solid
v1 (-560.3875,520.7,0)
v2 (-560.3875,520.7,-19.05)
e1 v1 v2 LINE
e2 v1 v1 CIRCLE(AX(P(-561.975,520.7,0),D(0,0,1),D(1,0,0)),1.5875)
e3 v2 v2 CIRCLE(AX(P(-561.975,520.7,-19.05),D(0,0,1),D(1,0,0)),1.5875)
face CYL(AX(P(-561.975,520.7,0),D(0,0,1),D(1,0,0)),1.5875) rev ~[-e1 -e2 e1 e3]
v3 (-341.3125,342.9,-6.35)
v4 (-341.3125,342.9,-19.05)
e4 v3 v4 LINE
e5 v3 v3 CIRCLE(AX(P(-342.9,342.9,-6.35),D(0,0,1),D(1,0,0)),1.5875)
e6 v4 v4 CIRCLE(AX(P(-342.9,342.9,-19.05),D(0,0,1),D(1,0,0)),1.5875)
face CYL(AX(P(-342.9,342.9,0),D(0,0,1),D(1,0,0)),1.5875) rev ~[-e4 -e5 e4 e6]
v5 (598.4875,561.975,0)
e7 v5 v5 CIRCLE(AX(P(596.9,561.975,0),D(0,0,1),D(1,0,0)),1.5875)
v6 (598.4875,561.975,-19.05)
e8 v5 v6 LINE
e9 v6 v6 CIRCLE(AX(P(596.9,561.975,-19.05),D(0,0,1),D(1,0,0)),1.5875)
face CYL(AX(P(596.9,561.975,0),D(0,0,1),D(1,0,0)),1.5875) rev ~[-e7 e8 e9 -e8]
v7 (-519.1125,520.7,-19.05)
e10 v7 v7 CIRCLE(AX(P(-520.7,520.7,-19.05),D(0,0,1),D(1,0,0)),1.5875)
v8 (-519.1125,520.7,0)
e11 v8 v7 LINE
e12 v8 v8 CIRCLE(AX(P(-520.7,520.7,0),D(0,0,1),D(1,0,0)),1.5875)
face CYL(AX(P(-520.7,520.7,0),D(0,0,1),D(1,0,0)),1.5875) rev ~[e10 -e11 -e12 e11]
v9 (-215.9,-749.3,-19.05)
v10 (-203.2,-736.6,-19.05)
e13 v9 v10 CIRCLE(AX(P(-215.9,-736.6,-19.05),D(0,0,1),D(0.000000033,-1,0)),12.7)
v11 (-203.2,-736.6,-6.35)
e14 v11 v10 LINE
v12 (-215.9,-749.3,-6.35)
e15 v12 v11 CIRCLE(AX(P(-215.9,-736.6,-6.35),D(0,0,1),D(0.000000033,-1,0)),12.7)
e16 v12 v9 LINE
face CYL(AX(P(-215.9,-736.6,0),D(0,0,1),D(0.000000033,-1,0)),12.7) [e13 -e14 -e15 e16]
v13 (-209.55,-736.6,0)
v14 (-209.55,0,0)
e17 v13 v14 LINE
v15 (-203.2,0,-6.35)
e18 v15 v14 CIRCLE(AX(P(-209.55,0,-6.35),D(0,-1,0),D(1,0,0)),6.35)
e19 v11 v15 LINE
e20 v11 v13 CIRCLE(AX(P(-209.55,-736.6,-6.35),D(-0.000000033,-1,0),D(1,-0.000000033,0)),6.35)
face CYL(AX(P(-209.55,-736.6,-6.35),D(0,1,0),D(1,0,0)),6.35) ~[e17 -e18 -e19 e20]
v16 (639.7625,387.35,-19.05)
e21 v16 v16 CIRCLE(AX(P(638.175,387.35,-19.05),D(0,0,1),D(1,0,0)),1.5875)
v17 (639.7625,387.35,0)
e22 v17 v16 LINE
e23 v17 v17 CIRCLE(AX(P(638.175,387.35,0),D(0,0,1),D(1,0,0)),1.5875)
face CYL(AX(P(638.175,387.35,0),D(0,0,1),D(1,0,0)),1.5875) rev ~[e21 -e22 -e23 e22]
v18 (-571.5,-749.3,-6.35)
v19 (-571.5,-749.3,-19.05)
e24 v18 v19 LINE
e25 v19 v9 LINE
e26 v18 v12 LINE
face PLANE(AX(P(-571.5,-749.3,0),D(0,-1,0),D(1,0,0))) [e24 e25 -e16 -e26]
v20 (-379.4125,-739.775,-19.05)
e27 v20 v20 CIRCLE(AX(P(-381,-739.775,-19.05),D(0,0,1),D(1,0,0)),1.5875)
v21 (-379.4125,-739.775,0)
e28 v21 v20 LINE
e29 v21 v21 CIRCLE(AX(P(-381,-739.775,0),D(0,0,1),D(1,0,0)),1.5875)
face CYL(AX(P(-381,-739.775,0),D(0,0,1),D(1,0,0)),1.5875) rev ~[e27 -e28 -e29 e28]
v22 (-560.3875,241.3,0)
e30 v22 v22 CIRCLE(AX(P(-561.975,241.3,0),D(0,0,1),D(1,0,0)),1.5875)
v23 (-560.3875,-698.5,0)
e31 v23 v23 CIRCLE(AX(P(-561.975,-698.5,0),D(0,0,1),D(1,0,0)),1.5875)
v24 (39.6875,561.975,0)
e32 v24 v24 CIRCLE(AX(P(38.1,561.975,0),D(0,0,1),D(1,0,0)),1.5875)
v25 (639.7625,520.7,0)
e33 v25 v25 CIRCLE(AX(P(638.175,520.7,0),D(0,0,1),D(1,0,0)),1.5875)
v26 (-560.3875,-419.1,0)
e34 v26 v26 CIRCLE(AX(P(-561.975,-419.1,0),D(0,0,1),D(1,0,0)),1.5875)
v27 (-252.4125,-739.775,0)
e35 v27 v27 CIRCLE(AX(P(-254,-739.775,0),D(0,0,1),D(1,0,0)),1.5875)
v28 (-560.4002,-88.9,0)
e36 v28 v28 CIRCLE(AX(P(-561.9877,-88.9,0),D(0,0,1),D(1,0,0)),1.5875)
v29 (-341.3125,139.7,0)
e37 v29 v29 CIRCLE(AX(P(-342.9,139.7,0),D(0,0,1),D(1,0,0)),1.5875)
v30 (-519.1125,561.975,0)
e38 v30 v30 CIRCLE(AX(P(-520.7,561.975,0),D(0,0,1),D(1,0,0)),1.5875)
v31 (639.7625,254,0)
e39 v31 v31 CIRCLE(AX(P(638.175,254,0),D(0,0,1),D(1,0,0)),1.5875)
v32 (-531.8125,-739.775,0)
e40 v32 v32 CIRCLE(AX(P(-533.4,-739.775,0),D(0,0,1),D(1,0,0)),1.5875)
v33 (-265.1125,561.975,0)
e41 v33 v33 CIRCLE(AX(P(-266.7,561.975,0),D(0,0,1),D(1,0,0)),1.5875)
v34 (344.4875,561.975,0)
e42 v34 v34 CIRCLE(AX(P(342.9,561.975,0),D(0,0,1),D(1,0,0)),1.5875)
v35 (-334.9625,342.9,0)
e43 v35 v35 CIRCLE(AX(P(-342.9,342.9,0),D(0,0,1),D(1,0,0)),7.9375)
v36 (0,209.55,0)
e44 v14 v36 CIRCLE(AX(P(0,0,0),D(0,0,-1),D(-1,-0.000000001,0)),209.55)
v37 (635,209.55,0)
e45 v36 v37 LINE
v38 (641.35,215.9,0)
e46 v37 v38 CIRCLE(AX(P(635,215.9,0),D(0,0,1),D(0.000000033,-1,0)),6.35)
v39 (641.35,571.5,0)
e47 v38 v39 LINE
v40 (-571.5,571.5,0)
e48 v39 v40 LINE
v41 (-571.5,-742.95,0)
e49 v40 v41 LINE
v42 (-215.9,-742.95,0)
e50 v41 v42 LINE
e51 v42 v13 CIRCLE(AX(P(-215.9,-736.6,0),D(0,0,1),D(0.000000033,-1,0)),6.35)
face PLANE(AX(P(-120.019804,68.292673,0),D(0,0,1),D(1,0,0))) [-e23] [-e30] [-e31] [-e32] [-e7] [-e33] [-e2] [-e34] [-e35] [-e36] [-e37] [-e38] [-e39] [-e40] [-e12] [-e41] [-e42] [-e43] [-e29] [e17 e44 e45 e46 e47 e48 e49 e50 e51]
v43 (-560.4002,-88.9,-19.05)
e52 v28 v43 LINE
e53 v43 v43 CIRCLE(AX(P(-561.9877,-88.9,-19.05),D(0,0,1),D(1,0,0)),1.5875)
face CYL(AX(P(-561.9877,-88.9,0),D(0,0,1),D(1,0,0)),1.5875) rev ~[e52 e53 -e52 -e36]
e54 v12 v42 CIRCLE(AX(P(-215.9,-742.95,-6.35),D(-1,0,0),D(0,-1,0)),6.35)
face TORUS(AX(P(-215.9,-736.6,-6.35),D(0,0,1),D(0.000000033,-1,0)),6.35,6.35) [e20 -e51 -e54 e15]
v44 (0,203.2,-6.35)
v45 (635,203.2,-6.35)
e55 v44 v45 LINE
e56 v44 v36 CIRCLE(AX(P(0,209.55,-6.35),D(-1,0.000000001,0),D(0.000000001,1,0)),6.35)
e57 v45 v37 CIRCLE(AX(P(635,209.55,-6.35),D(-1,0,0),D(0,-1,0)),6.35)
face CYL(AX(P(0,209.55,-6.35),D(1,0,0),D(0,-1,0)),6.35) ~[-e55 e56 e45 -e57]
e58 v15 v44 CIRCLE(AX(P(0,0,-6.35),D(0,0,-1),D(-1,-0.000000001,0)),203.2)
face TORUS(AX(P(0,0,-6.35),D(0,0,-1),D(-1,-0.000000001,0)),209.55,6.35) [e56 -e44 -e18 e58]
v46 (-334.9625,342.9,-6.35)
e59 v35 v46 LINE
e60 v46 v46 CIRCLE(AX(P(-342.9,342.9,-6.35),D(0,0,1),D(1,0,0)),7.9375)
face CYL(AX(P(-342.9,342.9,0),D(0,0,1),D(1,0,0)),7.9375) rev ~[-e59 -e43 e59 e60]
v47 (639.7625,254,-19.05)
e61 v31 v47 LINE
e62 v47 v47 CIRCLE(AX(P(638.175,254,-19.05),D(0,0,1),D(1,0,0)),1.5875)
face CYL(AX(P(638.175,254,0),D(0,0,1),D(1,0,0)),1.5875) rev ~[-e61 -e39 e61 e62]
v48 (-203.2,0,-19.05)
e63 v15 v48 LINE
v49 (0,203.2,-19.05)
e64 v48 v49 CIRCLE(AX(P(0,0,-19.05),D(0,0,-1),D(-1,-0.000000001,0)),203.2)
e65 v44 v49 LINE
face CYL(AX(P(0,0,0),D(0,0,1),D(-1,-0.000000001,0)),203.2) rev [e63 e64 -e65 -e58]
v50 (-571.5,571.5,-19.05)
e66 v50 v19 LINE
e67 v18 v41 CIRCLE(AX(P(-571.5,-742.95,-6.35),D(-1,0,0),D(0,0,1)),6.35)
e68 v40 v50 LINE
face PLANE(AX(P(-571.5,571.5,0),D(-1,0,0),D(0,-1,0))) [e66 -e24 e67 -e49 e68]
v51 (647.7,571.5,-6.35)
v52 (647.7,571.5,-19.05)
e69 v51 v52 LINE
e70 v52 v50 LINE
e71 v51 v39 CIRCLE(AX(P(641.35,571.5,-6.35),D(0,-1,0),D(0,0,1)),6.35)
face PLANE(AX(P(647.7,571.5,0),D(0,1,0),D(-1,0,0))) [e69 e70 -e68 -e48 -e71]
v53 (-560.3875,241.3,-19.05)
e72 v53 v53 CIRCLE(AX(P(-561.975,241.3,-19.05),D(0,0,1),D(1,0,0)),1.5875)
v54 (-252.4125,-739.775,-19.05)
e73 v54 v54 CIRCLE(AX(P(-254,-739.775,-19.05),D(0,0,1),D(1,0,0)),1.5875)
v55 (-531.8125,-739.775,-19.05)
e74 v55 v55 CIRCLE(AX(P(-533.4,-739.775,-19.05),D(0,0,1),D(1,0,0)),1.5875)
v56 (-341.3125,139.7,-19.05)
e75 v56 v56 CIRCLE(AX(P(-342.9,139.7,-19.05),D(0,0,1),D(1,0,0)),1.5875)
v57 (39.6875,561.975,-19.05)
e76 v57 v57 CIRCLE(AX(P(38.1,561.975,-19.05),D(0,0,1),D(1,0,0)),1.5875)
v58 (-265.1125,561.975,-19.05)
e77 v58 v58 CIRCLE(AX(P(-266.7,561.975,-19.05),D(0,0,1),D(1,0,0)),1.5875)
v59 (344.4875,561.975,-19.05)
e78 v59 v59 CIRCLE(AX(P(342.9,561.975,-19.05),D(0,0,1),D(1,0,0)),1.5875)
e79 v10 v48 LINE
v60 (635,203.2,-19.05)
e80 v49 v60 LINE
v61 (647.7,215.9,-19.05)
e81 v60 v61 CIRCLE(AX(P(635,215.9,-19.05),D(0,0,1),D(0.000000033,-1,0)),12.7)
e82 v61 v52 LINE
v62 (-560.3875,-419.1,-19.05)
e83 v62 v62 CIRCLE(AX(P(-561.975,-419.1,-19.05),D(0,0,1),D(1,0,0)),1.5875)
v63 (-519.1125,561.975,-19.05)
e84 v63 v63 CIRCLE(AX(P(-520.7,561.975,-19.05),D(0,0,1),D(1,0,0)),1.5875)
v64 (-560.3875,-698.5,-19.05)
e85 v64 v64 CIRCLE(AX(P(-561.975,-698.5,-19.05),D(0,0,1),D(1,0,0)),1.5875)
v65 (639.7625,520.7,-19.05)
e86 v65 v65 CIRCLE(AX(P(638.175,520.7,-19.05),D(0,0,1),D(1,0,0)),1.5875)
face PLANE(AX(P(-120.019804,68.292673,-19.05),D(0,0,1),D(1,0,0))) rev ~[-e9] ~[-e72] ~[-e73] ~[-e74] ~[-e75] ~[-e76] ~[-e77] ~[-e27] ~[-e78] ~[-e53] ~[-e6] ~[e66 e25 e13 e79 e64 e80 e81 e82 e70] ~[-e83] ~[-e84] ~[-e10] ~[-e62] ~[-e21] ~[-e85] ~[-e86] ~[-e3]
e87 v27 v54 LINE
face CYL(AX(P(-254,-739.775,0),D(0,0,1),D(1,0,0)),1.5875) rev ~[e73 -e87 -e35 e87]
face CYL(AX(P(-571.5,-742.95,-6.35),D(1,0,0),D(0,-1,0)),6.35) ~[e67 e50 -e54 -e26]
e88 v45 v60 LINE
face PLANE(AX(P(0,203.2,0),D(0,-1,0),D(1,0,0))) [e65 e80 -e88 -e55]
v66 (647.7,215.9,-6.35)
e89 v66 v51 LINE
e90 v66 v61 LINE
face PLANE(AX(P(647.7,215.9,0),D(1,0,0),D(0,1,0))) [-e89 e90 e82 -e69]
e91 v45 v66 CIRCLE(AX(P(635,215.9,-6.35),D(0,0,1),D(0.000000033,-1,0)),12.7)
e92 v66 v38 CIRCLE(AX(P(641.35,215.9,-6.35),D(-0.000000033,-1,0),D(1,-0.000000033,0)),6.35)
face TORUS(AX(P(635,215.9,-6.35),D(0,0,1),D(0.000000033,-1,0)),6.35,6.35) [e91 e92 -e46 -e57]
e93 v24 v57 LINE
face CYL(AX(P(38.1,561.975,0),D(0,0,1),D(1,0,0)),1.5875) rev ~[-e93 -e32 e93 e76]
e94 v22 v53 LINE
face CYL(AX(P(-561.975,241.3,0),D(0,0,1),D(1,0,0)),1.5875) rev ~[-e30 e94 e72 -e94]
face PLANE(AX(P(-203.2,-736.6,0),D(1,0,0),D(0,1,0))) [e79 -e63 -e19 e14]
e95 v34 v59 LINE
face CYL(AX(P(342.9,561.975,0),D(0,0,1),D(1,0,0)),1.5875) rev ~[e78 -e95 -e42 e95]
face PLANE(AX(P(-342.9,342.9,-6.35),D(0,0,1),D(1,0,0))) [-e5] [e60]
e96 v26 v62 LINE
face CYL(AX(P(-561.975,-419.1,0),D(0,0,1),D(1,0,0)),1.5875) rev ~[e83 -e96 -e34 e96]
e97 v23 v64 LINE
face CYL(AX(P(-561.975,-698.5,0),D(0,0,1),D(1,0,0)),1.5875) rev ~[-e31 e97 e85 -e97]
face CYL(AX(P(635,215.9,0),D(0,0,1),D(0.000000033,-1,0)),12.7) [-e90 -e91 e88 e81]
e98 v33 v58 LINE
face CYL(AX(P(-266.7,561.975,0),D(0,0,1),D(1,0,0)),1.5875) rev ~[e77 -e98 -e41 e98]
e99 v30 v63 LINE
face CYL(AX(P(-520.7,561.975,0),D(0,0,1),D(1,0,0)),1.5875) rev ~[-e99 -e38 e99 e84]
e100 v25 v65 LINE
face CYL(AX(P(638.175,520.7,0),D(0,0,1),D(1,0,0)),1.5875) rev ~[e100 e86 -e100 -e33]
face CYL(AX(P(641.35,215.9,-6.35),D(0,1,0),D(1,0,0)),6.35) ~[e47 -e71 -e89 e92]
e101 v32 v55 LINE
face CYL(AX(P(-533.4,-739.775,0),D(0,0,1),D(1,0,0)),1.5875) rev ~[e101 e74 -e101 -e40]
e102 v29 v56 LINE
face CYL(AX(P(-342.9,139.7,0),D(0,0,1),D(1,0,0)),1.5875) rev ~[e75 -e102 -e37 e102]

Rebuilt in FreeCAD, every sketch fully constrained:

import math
import FreeCAD as App
import Part
import Sketcher

V = App.Vector
Q = App.Units.Quantity


def edges_at(feature, points):
    """Names of the edges that pass closest to the given points."""
    edges = feature.Shape.Edges
    near = lambda p: min(range(len(edges)), key=lambda i: edges[i].distToShape(Part.Vertex(*p))[0])
    return sorted({f"Edge{near(p) + 1}" for p in points})

doc = App.newDocument("Part")
body = doc.addObject("PartDesign::Body", "Body")

# Sketch on XY plane
sketch1 = body.newObject("Sketcher::SketchObject", "Sketch")
sketch1.AttachmentSupport = (doc.getObject("XY_Plane"), [""])
sketch1.MapMode = "FlatFace"
sketch1.addGeometry([
    Part.LineSegment(V(-571.5, 571.5, 0), V(-571.5, -749.3, 0)),  # 0
    Part.LineSegment(V(-571.5, -749.3, 0), V(-215.9, -749.3, 0)),  # 1
    Part.ArcOfCircle(Part.Circle(V(-215.9, -736.6, 0), V(0, 0, 1), 12.7), math.radians(-90), math.radians(0)),  # 2
    Part.LineSegment(V(-203.2, -736.6, 0), V(-203.2, 0, 0)),  # 3
    Part.ArcOfCircle(Part.Circle(V(0, 0, 0), V(0, 0, 1), 203.2), math.radians(90), math.radians(180)),  # 4
    Part.LineSegment(V(0, 203.2, 0), V(635, 203.2, 0)),  # 5
    Part.ArcOfCircle(Part.Circle(V(635, 215.9, 0), V(0, 0, 1), 12.7), math.radians(-90), math.radians(0)),  # 6
    Part.LineSegment(V(647.7, 215.9, 0), V(647.7, 571.5, 0)),  # 7
    Part.LineSegment(V(647.7, 571.5, 0), V(-571.5, 571.5, 0)),  # 8
    Part.Circle(V(-533.4, -739.8, 0), V(0, 0, 1), 1.6),  # 9
    Part.Circle(V(-562, -698.5, 0), V(0, 0, 1), 1.6),  # 10
    Part.Circle(V(-381, -739.8, 0), V(0, 0, 1), 1.6),  # 11
    Part.Circle(V(-562, -419.1, 0), V(0, 0, 1), 1.6),  # 12
    Part.Circle(V(-254, -739.8, 0), V(0, 0, 1), 1.6),  # 13
    Part.Circle(V(-562, -88.9, 0), V(0, 0, 1), 1.6),  # 14
    Part.Circle(V(-342.9, 139.7, 0), V(0, 0, 1), 1.6),  # 15
    Part.Circle(V(-562, 241.3, 0), V(0, 0, 1), 1.6),  # 16
    Part.Circle(V(-342.9, 342.9, 0), V(0, 0, 1), 1.6),  # 17
    Part.Circle(V(-562, 520.7, 0), V(0, 0, 1), 1.6),  # 18
    Part.Circle(V(-520.7, 520.7, 0), V(0, 0, 1), 1.6),  # 19
    Part.Circle(V(-520.7, 562, 0), V(0, 0, 1), 1.6),  # 20
    Part.Circle(V(-266.7, 562, 0), V(0, 0, 1), 1.6),  # 21
    Part.Circle(V(38.1, 562, 0), V(0, 0, 1), 1.6),  # 22
    Part.Circle(V(638.2, 254, 0), V(0, 0, 1), 1.6),  # 23
    Part.Circle(V(638.2, 387.4, 0), V(0, 0, 1), 1.6),  # 24
    Part.Circle(V(342.9, 562, 0), V(0, 0, 1), 1.6),  # 25
    Part.Circle(V(638.2, 520.7, 0), V(0, 0, 1), 1.6),  # 26
    Part.Circle(V(596.9, 562, 0), V(0, 0, 1), 1.6),  # 27
], False)
sketch1.addConstraint([
    Sketcher.Constraint("Coincident", 0, 2, 1, 1),
    Sketcher.Constraint("Tangent", 1, 2, 2, 1),
    Sketcher.Constraint("Tangent", 2, 2, 3, 1),
    Sketcher.Constraint("Tangent", 3, 2, 4, 2),
    Sketcher.Constraint("Tangent", 4, 1, 5, 1),
    Sketcher.Constraint("Tangent", 5, 2, 6, 1),
    Sketcher.Constraint("Tangent", 6, 2, 7, 1),
    Sketcher.Constraint("Coincident", 7, 2, 8, 1),
    Sketcher.Constraint("Coincident", 8, 2, 0, 1),
    Sketcher.Constraint("Vertical", 0),
    Sketcher.Constraint("Horizontal", 1),
    Sketcher.Constraint("Vertical", 3),
    Sketcher.Constraint("Horizontal", 5),
    Sketcher.Constraint("Vertical", 7),
    Sketcher.Constraint("Horizontal", 8),
    Sketcher.Constraint("Coincident", 4, 3, -1, 1),
    Sketcher.Constraint("Equal", 2, 6),
    Sketcher.Constraint("Equal", 9, 10),
    Sketcher.Constraint("Equal", 10, 11),
    Sketcher.Constraint("Equal", 11, 12),
    Sketcher.Constraint("Equal", 12, 13),
    Sketcher.Constraint("Equal", 13, 14),
    Sketcher.Constraint("Equal", 14, 15),
    Sketcher.Constraint("Equal", 15, 16),
    Sketcher.Constraint("Equal", 16, 17),
    Sketcher.Constraint("Equal", 17, 18),
    Sketcher.Constraint("Equal", 18, 19),
    Sketcher.Constraint("Equal", 19, 20),
    Sketcher.Constraint("Equal", 20, 21),
    Sketcher.Constraint("Equal", 21, 22),
    Sketcher.Constraint("Equal", 22, 23),
    Sketcher.Constraint("Equal", 23, 24),
    Sketcher.Constraint("Equal", 24, 25),
    Sketcher.Constraint("Equal", 25, 26),
    Sketcher.Constraint("Equal", 26, 27),
    Sketcher.Constraint("Horizontal", 9, 3, 11, 3),
    Sketcher.Constraint("Horizontal", 11, 3, 13, 3),
    Sketcher.Constraint("Horizontal", 18, 3, 19, 3),
    Sketcher.Constraint("Horizontal", 20, 3, 21, 3),
    Sketcher.Constraint("Horizontal", 21, 3, 22, 3),
    Sketcher.Constraint("Horizontal", 22, 3, 25, 3),
    Sketcher.Constraint("Horizontal", 19, 3, 26, 3),
    Sketcher.Constraint("Horizontal", 25, 3, 27, 3),
    Sketcher.Constraint("Vertical", 10, 3, 12, 3),
    Sketcher.Constraint("Vertical", 12, 3, 16, 3),
    Sketcher.Constraint("Vertical", 15, 3, 17, 3),
    Sketcher.Constraint("Vertical", 16, 3, 18, 3),
    Sketcher.Constraint("Vertical", 19, 3, 20, 3),
    Sketcher.Constraint("Vertical", 23, 3, 24, 3),
    Sketcher.Constraint("Vertical", 24, 3, 26, 3),
    Sketcher.Constraint("Equal", 1, 7),
    Sketcher.Constraint("Radius", 4, Q("8 in")),
    Sketcher.Constraint("Radius", 2, Q("0.5 in")),
    Sketcher.Constraint("DistanceX", 1, 1, 1, 2, Q("14 in")),
    Sketcher.Constraint("DistanceX", 5, 1, 5, 2, Q("25 in")),
    Sketcher.Constraint("DistanceY", 0, 2, 0, 1, Q("52 in")),
    Sketcher.Constraint("Diameter", 9, Q("0.125 in")),
    Sketcher.Constraint("DistanceX", 9, 3, -1, 1, Q("21 in")),
    Sketcher.Constraint("DistanceX", 11, 3, -1, 1, Q("15 in")),
    Sketcher.Constraint("DistanceX", 13, 3, -1, 1, Q("10 in")),
    Sketcher.Constraint("DistanceY", -1, 1, 23, 3, Q("10 in")),
    Sketcher.Constraint("DistanceY", 10, 3, 6, 3, Q("36 in")),
    Sketcher.Constraint("DistanceY", 10, 3, 12, 3, Q("11 in")),
    Sketcher.Constraint("DistanceY", 12, 3, 14, 3, Q("13 in")),
    Sketcher.Constraint("DistanceY", 14, 3, 15, 3, Q("9 in")),
    Sketcher.Constraint("DistanceY", 15, 3, 16, 3, Q("4 in")),
    Sketcher.Constraint("DistanceY", 15, 3, 17, 3, Q("8 in")),
    Sketcher.Constraint("DistanceY", 16, 3, 18, 3, Q("11 in")),
    Sketcher.Constraint("DistanceX", 19, 3, 17, 3, Q("7 in")),
    Sketcher.Constraint("DistanceX", 17, 3, 21, 3, Q("3 in")),
    Sketcher.Constraint("DistanceX", 21, 3, 22, 3, Q("12 in")),
    Sketcher.Constraint("DistanceX", 22, 3, 25, 3, Q("12 in")),
    Sketcher.Constraint("DistanceX", 25, 3, 27, 3, Q("10 in")),
    Sketcher.Constraint("DistanceX", 27, 3, 7, 2, Q("2 in")),
    Sketcher.Constraint("DistanceY", -1, 1, 24, 3, Q("15.25 in")),
    Sketcher.Constraint("DistanceY", 9, 3, -1, 1, Q("29.125 in")),
    Sketcher.Constraint("DistanceX", 10, 3, -1, 1, Q("22.125 in")),
    Sketcher.Constraint("DistanceY", -1, 1, 20, 3, Q("22.125 in")),
    Sketcher.Constraint("DistanceX", -1, 1, 23, 3, Q("25.125 in")),
    Sketcher.Constraint("DistanceX", 14, 3, -1, 1, Q("22.1255 in")),
])
pad1 = body.newObject("PartDesign::Pad", "Pad")
pad1.Profile = sketch1
pad1.Length = Q("0.75 in")
pad1.Reversed = True
doc.recompute()

fillet = body.newObject("PartDesign::Fillet", "Fillet")
fillet.Base = (pad1, edges_at(pad1, [(-393.7, -749.3, 0)]))
fillet.Radius = Q("0.25 in")

# Sketch on XY plane
sketch2 = body.newObject("Sketcher::SketchObject", "Sketch001")
sketch2.AttachmentSupport = (doc.getObject("XY_Plane"), [""])
sketch2.MapMode = "FlatFace"
sketch2.addGeometry(Part.Circle(V(-343, 343, 0), V(0, 0, 1), 8), False)
sketch2.addConstraint([
    Sketcher.Constraint("Diameter", 0, Q("0.625 in")),
    Sketcher.Constraint("DistanceX", 0, 3, -1, 1, Q("13.5 in")),
    Sketcher.Constraint("DistanceY", -1, 1, 0, 3, Q("13.5 in")),
])
pocket1 = body.newObject("PartDesign::Pocket", "Pocket")
pocket1.Profile = sketch2
pocket1.Length = Q("0.25 in")

doc.recompute()
